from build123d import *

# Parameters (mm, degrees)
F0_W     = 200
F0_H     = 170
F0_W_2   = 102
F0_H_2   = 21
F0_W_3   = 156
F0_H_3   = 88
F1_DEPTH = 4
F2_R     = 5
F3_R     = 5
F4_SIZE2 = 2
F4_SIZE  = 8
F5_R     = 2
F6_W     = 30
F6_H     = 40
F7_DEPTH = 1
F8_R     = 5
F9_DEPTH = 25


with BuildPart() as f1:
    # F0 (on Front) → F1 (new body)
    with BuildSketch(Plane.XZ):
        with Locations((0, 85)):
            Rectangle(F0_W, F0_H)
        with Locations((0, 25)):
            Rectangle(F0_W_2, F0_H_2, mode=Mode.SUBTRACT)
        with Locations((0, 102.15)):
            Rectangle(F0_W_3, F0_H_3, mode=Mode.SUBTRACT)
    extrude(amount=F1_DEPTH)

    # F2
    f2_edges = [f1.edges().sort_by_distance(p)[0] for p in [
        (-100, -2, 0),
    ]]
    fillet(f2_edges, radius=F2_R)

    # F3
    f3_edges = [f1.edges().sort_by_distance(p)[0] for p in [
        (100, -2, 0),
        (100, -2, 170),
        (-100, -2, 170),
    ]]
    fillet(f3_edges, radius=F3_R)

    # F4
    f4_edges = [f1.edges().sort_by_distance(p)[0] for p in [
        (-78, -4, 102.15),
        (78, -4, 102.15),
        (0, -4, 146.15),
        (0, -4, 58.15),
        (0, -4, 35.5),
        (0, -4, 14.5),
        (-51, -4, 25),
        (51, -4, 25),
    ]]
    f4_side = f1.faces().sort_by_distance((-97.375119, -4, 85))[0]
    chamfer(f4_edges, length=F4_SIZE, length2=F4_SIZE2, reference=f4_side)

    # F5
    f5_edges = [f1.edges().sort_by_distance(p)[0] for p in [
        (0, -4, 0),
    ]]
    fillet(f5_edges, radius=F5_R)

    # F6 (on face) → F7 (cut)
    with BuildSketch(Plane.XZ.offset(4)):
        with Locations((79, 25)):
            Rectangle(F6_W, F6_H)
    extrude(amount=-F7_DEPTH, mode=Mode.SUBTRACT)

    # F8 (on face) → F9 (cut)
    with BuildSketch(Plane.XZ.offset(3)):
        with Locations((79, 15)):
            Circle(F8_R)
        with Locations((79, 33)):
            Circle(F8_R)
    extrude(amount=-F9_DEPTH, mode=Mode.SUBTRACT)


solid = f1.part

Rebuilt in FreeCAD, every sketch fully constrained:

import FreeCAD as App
import Part
import Sketcher

V = App.Vector


def edges_at(feature, points):
    """Names of the edges that pass closest to the given points."""
    edges = feature.Shape.Edges
    near = lambda p: min(range(len(edges)), key=lambda i: edges[i].distToShape(Part.Vertex(*p))[0])
    return sorted({f"Edge{near(p) + 1}" for p in points})


def add_polygon(sketch, points):
    """Adds a closed chain of lines whose ends are joined by coincident constraints."""
    first, n = sketch.GeometryCount, len(points)
    for a, b in zip(points, points[1:] + points[:1]):
        sketch.addGeometry(Part.LineSegment(App.Vector(*a, 0), App.Vector(*b, 0)), False)
    for i in range(n):
        sketch.addConstraint(Sketcher.Constraint("Coincident", first + i, 2, first + (i + 1) % n, 1))

doc = App.newDocument("Part")
body = doc.addObject("PartDesign::Body", "Body")

sketch1 = body.newObject("Sketcher::SketchObject", "Sketch")
sketch1.AttachmentSupport = (doc.getObject("XZ_Plane"), [""])
sketch1.MapMode = "FlatFace"
add_polygon(sketch1, [(-100, 170), (-100, 0), (100, 0), (100, 170)])
add_polygon(sketch1, [(51, 14.5), (-51, 14.5), (-51, 35.5), (51, 35.5)])
add_polygon(sketch1, [(78, 58.15), (-78, 58.15), (-78, 146.15), (78, 146.15)])
sketch1.addConstraint([
    Sketcher.Constraint("Vertical", 0),
    Sketcher.Constraint("Horizontal", 1),
    Sketcher.Constraint("Vertical", 2),
    Sketcher.Constraint("Horizontal", 3),
    Sketcher.Constraint("Horizontal", 4),
    Sketcher.Constraint("Vertical", 5),
    Sketcher.Constraint("Horizontal", 6),
    Sketcher.Constraint("Vertical", 7),
    Sketcher.Constraint("Horizontal", 8),
    Sketcher.Constraint("Vertical", 9),
    Sketcher.Constraint("Horizontal", 10),
    Sketcher.Constraint("Vertical", 11),
    Sketcher.Constraint("Symmetric", 0, 2, 1, 2, -1, 1),
    Sketcher.Constraint("DistanceX", 1, 1, 1, 2, 200.0),
    Sketcher.Constraint("DistanceX", 4, 2, 4, 1, 102.0),
    Sketcher.Constraint("DistanceX", 8, 2, 8, 1, 156.0),
    Sketcher.Constraint("DistanceY", 0, 2, 0, 1, 170.0),
    Sketcher.Constraint("DistanceY", 5, 1, 5, 2, 21.0),
    Sketcher.Constraint("DistanceY", 9, 1, 9, 2, 88.0),
    Sketcher.Constraint("DistanceX", 4, 2, -1, 1, 51.0),
    Sketcher.Constraint("DistanceX", 8, 2, -1, 1, 78.0),
    Sketcher.Constraint("DistanceY", -1, 1, 4, 2, 14.5),
    Sketcher.Constraint("DistanceY", -1, 1, 8, 2, 58.15),
])
pad1 = body.newObject("PartDesign::Pad", "Pad")
pad1.Profile = sketch1
pad1.Length = 4
doc.recompute()

fillet = body.newObject("PartDesign::Fillet", "Fillet")
fillet.Base = (pad1, edges_at(pad1, [(-100, -2, 0)]))
fillet.Radius = 5
doc.recompute()

fillet2 = body.newObject("PartDesign::Fillet", "Fillet001")
fillet2.Base = (fillet, edges_at(fillet, [(100, -2, 0), (100, -2, 170), (-100, -2, 170)]))
fillet2.Radius = 5
doc.recompute()

chamfer = body.newObject("PartDesign::Chamfer", "Chamfer")
chamfer.Base = (fillet2, edges_at(fillet2, [
    (-78, -4, 102.15),
    (78, -4, 102.15),
    (0, -4, 146.15),
    (0, -4, 58.15),
    (0, -4, 35.5),
    (0, -4, 14.5),
    (-51, -4, 25),
    (51, -4, 25),
]))
chamfer.ChamferType = "Two distances"
chamfer.Size = 8
chamfer.Size2 = 2
doc.recompute()

fillet3 = body.newObject("PartDesign::Fillet", "Fillet002")
fillet3.Base = (chamfer, edges_at(chamfer, [(0, -4, 0)]))
fillet3.Radius = 2

sketch2 = body.newObject("Sketcher::SketchObject", "Sketch001")
sketch2.AttachmentSupport = (doc.getObject("XZ_Plane"), [""])
sketch2.MapMode = "FlatFace"
sketch2.AttachmentOffset = App.Placement(V(0, 0, 4), App.Rotation())
add_polygon(sketch2, [(64, 45), (64, 5), (94, 5), (94, 45)])
sketch2.addConstraint([
    Sketcher.Constraint("Vertical", 0),
    Sketcher.Constraint("Horizontal", 1),
    Sketcher.Constraint("Vertical", 2),
    Sketcher.Constraint("Horizontal", 3),
    Sketcher.Constraint("DistanceX", 1, 1, 1, 2, 30.0),
    Sketcher.Constraint("DistanceY", 0, 2, 0, 1, 40.0),
    Sketcher.Constraint("DistanceX", -1, 1, 0, 2, 64.0),
    Sketcher.Constraint("DistanceY", -1, 1, 0, 2, 5.0),
])
pocket1 = body.newObject("PartDesign::Pocket", "Pocket")
pocket1.Profile = sketch2
pocket1.Length = 1

sketch3 = body.newObject("Sketcher::SketchObject", "Sketch002")
sketch3.AttachmentSupport = (doc.getObject("XZ_Plane"), [""])
sketch3.MapMode = "FlatFace"
sketch3.AttachmentOffset = App.Placement(V(0, 0, 3), App.Rotation())
sketch3.addGeometry([
    Part.Circle(V(79, 15, 0), V(0, 0, 1), 5),
    Part.Circle(V(79, 33, 0), V(0, 0, 1), 5),
], False)
sketch3.addConstraint([
    Sketcher.Constraint("Equal", 0, 1),
    Sketcher.Constraint("Vertical", 0, 3, 1, 3),
    Sketcher.Constraint("Diameter", 0, 10.0),
    Sketcher.Constraint("DistanceX", -1, 1, 0, 3, 79.0),
    Sketcher.Constraint("DistanceY", -1, 1, 0, 3, 15.0),
    Sketcher.Constraint("DistanceY", -1, 1, 1, 3, 33.0),
])
pocket2 = body.newObject("PartDesign::Pocket", "Pocket001")
pocket2.Profile = sketch3
pocket2.Length = 25

doc.recompute()
